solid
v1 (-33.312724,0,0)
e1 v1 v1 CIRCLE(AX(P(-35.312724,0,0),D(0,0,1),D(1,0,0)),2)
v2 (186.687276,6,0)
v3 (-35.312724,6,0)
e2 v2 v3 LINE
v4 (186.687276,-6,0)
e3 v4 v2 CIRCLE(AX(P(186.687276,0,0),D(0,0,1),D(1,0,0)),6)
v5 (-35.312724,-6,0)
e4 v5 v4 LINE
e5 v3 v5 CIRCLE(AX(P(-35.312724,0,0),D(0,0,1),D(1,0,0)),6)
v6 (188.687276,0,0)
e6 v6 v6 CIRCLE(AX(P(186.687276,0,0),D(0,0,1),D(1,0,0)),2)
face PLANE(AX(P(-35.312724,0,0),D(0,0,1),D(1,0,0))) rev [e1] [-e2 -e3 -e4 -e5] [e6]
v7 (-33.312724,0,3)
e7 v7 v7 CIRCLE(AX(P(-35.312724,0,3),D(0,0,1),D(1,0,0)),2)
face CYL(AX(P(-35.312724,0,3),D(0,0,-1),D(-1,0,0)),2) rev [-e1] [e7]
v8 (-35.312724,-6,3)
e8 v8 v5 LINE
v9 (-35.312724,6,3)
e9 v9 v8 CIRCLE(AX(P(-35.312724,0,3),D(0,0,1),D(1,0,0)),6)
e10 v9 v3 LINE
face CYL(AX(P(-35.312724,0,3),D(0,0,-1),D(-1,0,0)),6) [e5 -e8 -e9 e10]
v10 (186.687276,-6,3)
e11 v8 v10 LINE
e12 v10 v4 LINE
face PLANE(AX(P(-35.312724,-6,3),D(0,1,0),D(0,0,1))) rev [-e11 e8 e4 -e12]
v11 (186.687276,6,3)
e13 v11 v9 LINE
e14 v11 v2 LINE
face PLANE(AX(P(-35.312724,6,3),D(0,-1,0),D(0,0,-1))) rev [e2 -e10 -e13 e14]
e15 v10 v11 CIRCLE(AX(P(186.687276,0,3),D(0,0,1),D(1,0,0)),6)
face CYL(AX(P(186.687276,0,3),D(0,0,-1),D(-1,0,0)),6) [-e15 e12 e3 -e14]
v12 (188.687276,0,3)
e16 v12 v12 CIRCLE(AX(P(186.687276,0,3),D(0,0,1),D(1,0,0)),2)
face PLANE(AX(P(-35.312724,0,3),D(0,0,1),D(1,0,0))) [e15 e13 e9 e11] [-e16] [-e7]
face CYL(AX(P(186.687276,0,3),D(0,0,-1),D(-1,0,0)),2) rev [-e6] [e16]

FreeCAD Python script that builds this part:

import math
import FreeCAD as App
import Part
import Sketcher
from FreeCAD import Vector
Q = App.Units.Quantity

doc = App.newDocument("Part")
body = doc.addObject("PartDesign::Body", "Body")

# Sketch on XY plane
sketch1 = body.newObject("Sketcher::SketchObject", "Sketch")
sketch1.AttachmentSupport = (doc.getObject("XY_Plane"), [""])
sketch1.MapMode = "FlatFace"
sketch1.addGeometry([
    Part.LineSegment(Vector(186.687276, 6, 0), Vector(-35.312724, 6, 0)),  # 0
    Part.ArcOfCircle(Part.Circle(Vector(-35.312724, 0, 0), Vector(0, 0, 1), 6), math.radians(90), math.radians(270)),  # 1
    Part.LineSegment(Vector(-35.312724, -6, 0), Vector(186.687276, -6, 0)),  # 2
    Part.ArcOfCircle(Part.Circle(Vector(186.687276, 0, 0), Vector(0, 0, 1), 6), math.radians(-90), math.radians(90)),  # 3
    Part.Circle(Vector(186.687276, 0, 0), Vector(0, 0, 1), 2),  # 4
    Part.Circle(Vector(-35.312724, 0, 0), Vector(0, 0, 1), 2),  # 5
], False)
sketch1.addConstraint([
    Sketcher.Constraint("Tangent", 0, 2, 1, 1),
    Sketcher.Constraint("Tangent", 1, 2, 2, 1),
    Sketcher.Constraint("Tangent", 2, 2, 3, 1),
    Sketcher.Constraint("Tangent", 3, 2, 0, 1),
    Sketcher.Constraint("Horizontal", 0),
    Sketcher.Constraint("Horizontal", 2),
    Sketcher.Constraint("Coincident", 4, 3, 3, 3),
    Sketcher.Constraint("Coincident", 5, 3, 1, 3),
    Sketcher.Constraint("Equal", 4, 5),
    Sketcher.Constraint("PointOnObject", 1, 3, -1),
    Sketcher.Constraint("Diameter", 4, Q("4 mm")),
    Sketcher.Constraint("Radius", 1, Q("6 mm")),
    Sketcher.Constraint("DistanceX", 0, 2, 0, 1, Q("222 mm")),
    Sketcher.Constraint("DistanceX", 1, 3, -1, 1, Q("35.312724 mm")),
])
pad1 = body.newObject("PartDesign::Pad", "Pad")
pad1.Profile = sketch1
pad1.Length = 3

doc.recompute()
